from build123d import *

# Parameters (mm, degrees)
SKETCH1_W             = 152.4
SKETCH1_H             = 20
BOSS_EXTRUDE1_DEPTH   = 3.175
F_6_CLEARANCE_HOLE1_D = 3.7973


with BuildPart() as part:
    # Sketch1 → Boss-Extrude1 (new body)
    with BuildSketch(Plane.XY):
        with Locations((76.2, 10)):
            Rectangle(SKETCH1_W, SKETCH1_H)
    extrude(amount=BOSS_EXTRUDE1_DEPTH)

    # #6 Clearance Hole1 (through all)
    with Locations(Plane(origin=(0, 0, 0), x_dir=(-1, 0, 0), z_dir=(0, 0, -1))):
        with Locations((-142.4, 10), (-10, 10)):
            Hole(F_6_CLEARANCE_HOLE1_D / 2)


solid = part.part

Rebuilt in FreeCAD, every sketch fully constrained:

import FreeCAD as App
import Part
import Sketcher
Q = App.Units.Quantity


def add_polygon(sketch, points):
    """Adds a closed chain of lines whose ends are joined by coincident constraints."""
    first, n = sketch.GeometryCount, len(points)
    for a, b in zip(points, points[1:] + points[:1]):
        sketch.addGeometry(Part.LineSegment(App.Vector(*a, 0), App.Vector(*b, 0)), False)
    for i in range(n):
        sketch.addConstraint(Sketcher.Constraint("Coincident", first + i, 2, first + (i + 1) % n, 1))

doc = App.newDocument("Part")
params = doc.addObject("Spreadsheet::Sheet", "Params")
for row, (alias, value) in enumerate([
    ("sketch1_width", "6 in"),
    ("pad1_length", "0.125 in"),
    ("hole_diameter", "0.1495 in"),
], start=1):
    params.set(f"A{row}", alias)
    params.set(f"B{row}", "=" + value)
    params.setAlias(f"B{row}", alias)

body = doc.addObject("PartDesign::Body", "Body")

# Sketch on XY plane
sketch1 = body.newObject("Sketcher::SketchObject", "Sketch")
sketch1.AttachmentSupport = (doc.getObject("XY_Plane"), [""])
sketch1.MapMode = "FlatFace"
add_polygon(sketch1, [(0, 20), (0, 0), (152.4, 0), (152.4, 20)])  # lines 0-3
sketch1.addConstraint([
    Sketcher.Constraint("Vertical", 0),
    Sketcher.Constraint("Horizontal", 1),
    Sketcher.Constraint("Vertical", 2),
    Sketcher.Constraint("Horizontal", 3),
    Sketcher.Constraint("Coincident", 0, 2, -1, 1),
    Sketcher.Constraint("DistanceX", 1, 1, 1, 2, Q("6 in")),
    Sketcher.Constraint("DistanceY", 0, 2, 0, 1, 20.0),
])
sketch1.setExpression("Constraints[9]", "Params.sketch1_width")
pad1 = body.newObject("PartDesign::Pad", "Pad")
pad1.Profile = sketch1
pad1.setExpression("Length", "Params.pad1_length")

# Sketch on XY plane
sketch2 = body.newObject("Sketcher::SketchObject", "Sketch001")
sketch2.AttachmentSupport = (doc.getObject("XY_Plane"), [""])
sketch2.MapMode = "FlatFace"
sketch2.addGeometry([
    Part.Circle(App.Vector(142.4, 10, 0), App.Vector(0, 0, 1), 1.89865),
    Part.Circle(App.Vector(10, 10, 0), App.Vector(0, 0, 1), 1.89865),
], False)
sketch2.addConstraint([
    Sketcher.Constraint("Equal", 0, 1),
    Sketcher.Constraint("Horizontal", 0, 3, 1, 3),
    Sketcher.Constraint("Diameter", 0, Q("0.1495 in")),
    Sketcher.Constraint("DistanceX", -1, 1, 0, 3, 142.4),
    Sketcher.Constraint("DistanceY", -1, 1, 0, 3, 10.0),
    Sketcher.Constraint("DistanceX", -1, 1, 1, 3, 10.0),
])
doc.recompute()
hole = body.newObject("PartDesign::Hole", "Hole")
hole.Profile = sketch2
hole.ThreadType = "None"
hole.setExpression("Diameter", "Params.hole_diameter")
hole.DepthType = "ThroughAll"
hole.Reversed = True

doc.recompute()
